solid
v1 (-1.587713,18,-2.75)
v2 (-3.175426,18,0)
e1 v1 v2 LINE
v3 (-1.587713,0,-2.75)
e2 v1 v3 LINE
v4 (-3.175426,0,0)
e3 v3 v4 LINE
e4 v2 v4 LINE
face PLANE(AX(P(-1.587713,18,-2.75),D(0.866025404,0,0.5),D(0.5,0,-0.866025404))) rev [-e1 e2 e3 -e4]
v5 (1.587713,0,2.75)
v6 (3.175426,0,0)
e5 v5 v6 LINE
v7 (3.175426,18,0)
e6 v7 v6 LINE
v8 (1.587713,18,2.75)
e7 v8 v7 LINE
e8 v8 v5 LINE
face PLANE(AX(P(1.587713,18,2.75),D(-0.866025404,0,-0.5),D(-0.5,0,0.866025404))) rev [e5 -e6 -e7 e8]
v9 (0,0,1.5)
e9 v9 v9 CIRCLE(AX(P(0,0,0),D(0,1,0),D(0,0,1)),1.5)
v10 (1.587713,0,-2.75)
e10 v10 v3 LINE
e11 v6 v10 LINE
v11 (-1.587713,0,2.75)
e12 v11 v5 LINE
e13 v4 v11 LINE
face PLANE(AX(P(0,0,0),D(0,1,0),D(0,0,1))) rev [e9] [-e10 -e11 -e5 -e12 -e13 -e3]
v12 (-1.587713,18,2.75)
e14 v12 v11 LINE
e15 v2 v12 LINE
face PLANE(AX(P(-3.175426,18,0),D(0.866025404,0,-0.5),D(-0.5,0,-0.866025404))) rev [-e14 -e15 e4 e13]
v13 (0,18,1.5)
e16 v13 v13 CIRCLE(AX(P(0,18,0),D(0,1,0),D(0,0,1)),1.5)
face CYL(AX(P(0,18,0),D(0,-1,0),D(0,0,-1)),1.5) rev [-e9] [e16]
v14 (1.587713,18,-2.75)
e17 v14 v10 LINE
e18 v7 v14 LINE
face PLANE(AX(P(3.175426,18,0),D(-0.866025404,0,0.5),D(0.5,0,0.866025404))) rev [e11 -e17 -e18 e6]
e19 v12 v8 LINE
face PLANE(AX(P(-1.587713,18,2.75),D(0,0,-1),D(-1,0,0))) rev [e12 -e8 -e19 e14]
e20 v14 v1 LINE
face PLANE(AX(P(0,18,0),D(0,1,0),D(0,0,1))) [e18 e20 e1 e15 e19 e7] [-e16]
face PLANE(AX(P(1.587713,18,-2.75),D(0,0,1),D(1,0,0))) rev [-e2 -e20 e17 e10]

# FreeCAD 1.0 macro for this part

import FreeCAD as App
import Part
import Sketcher
from FreeCAD import Vector
Q = App.Units.Quantity


def add_polygon(sketch, points):
    """Adds a closed chain of lines whose ends are joined by coincident constraints."""
    first, n = sketch.GeometryCount, len(points)
    for a, b in zip(points, points[1:] + points[:1]):
        sketch.addGeometry(Part.LineSegment(App.Vector(*a, 0), App.Vector(*b, 0)), False)
    for i in range(n):
        sketch.addConstraint(Sketcher.Constraint("Coincident", first + i, 2, first + (i + 1) % n, 1))

doc = App.newDocument("Part")
body = doc.addObject("PartDesign::Body", "Body")

# Sketch on XZ plane
sketch1 = doc.addObject("Sketcher::SketchObject", "Sketch")
body.addObject(sketch1)
sketch1.AttachmentSupport = (doc.XZ_Plane, [""])
sketch1.MapMode = "FlatFace"
add_polygon(sketch1, [(3.175426, 0), (1.587713, -2.75), (-1.587713, -2.75), (-3.175426, 0), (-1.587713, 2.75), (1.587713, 2.75)])  # lines 0-5
sketch1.addGeometry(Part.Circle(Vector(0, 0, 0), Vector(0, 0, 1), 1.5), False)  # 6
sketch1.addConstraint(Sketcher.Constraint("Horizontal", 1))
sketch1.addConstraint(Sketcher.Constraint("Horizontal", 4))
sketch1.addConstraint(Sketcher.Constraint("Coincident", 6, 3, -1, 1))
sketch1.addConstraint(Sketcher.Constraint("Symmetric", 0, 2, 3, 2, -1, 1))
sketch1.addConstraint(Sketcher.Constraint("Symmetric", 2, 2, 5, 2, -1, 1))
sketch1.addConstraint(Sketcher.Constraint("PointOnObject", 2, 2, -1))
sketch1.addConstraint(Sketcher.Constraint("Parallel", 2, 5))
sketch1.addConstraint(Sketcher.Constraint("Vertical", 1, 2, 3, 2))
sketch1.addConstraint(Sketcher.Constraint("Diameter", 6, 3.0))
sketch1.addConstraint(Sketcher.Constraint("Angle", 0, Q("-120 deg")))
sketch1.addConstraint(Sketcher.Constraint("DistanceY", 1, 2, 3, 2, 5.5))
sketch1.addConstraint(Sketcher.Constraint("DistanceX", 1, 2, 1, 1, 3.175426))
pad1 = doc.addObject("PartDesign::Pad", "Pad")
body.addObject(pad1)
pad1.Profile = sketch1
pad1.Length = 18
pad1.Reversed = True

doc.recompute()
